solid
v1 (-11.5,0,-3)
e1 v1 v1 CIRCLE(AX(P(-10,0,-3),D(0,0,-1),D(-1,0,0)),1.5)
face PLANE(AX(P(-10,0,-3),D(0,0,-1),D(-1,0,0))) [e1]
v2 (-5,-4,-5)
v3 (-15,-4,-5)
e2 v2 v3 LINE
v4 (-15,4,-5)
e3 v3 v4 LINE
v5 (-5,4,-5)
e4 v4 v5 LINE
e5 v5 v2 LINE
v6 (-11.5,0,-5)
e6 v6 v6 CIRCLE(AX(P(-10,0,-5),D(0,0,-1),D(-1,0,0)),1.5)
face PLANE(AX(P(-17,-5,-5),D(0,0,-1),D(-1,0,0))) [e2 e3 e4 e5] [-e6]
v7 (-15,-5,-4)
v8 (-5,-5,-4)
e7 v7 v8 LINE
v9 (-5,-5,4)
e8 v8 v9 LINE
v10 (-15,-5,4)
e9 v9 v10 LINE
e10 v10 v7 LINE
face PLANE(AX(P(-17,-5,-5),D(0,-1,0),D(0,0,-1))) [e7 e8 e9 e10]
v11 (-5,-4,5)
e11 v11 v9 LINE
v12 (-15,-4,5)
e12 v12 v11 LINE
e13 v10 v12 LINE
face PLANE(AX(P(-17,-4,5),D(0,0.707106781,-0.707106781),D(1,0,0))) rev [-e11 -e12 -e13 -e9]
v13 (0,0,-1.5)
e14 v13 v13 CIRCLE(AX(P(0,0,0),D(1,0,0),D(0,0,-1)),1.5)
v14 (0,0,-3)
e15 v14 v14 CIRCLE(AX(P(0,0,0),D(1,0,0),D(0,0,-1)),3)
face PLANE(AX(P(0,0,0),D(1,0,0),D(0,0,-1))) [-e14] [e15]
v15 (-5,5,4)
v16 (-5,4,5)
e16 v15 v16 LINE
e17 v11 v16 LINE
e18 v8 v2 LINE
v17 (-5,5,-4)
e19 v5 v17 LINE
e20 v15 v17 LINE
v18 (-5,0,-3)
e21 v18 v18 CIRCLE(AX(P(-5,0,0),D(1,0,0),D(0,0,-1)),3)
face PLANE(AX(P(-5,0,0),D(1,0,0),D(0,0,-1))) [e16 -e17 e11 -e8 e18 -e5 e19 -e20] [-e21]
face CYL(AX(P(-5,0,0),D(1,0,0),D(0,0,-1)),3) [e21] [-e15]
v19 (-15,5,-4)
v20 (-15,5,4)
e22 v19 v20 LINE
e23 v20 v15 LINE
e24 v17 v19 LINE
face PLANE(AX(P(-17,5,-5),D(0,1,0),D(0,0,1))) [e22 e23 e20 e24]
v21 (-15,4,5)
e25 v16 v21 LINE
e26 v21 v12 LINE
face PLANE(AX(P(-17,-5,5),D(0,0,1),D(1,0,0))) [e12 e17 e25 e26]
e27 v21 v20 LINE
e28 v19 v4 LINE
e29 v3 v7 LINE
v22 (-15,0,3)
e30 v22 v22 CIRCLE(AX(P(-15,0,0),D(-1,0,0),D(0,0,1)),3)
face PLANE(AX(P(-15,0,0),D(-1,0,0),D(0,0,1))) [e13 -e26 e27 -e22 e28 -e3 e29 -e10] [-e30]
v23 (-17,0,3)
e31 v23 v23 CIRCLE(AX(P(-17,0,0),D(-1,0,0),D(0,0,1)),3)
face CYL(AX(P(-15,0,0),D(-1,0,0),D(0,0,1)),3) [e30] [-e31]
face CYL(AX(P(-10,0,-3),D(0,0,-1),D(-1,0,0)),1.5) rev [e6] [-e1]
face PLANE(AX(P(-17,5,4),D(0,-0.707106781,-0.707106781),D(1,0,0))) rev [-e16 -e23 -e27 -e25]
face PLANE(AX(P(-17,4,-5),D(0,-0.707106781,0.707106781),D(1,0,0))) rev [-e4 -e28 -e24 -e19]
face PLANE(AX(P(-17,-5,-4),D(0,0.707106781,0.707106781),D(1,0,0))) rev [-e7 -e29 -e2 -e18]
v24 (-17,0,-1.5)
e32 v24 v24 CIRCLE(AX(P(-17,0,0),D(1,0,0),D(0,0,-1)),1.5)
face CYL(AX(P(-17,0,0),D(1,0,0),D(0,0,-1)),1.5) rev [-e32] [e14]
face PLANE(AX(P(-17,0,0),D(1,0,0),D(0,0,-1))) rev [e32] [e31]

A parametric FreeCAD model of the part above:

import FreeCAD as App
import Part
import Sketcher


def edges_at(feature, points):
    """Names of the edges that pass closest to the given points."""
    edges = feature.Shape.Edges
    near = lambda p: min(range(len(edges)), key=lambda i: edges[i].distToShape(Part.Vertex(*p))[0])
    return sorted({f"Edge{near(p) + 1}" for p in points})

doc = App.newDocument("Part")
body = doc.addObject("PartDesign::Body", "Body")

# Sketch on YZ plane
sketch1 = body.newObject("Sketcher::SketchObject", "Sketch")
sketch1.AttachmentSupport = (doc.getObject("YZ_Plane"), [""])
sketch1.MapMode = "FlatFace"
sketch1.addGeometry([
    Part.LineSegment(App.Vector(5, 5, 0), App.Vector(-5, 5, 0)),
    Part.LineSegment(App.Vector(-5, 5, 0), App.Vector(-5, -5, 0)),
    Part.LineSegment(App.Vector(-5, -5, 0), App.Vector(5, -5, 0)),
    Part.LineSegment(App.Vector(5, -5, 0), App.Vector(5, 5, 0)),
], False)
sketch1.addConstraint([
    Sketcher.Constraint("Coincident", 0, 2, 1, 1),
    Sketcher.Constraint("Coincident", 1, 2, 2, 1),
    Sketcher.Constraint("Coincident", 2, 2, 3, 1),
    Sketcher.Constraint("Coincident", 3, 2, 0, 1),
    Sketcher.Constraint("Horizontal", 0),
    Sketcher.Constraint("Vertical", 1),
    Sketcher.Constraint("Horizontal", 2),
    Sketcher.Constraint("Vertical", 3),
    Sketcher.Constraint("Symmetric", 0, 2, 2, 2, -1, 1),
    Sketcher.Constraint("Equal", 2, 1),
    Sketcher.Constraint("DistanceX", 0, 2, 0, 1, 10.0),
])
pad1 = body.newObject("PartDesign::Pad", "Pad")
pad1.Profile = sketch1
pad1.Length = 17
pad1.Reversed = True

# Sketch on YZ plane
sketch2 = body.newObject("Sketcher::SketchObject", "Sketch001")
sketch2.AttachmentSupport = (doc.getObject("YZ_Plane"), [""])
sketch2.MapMode = "FlatFace"
sketch2.addGeometry([
    Part.Circle(App.Vector(0, 0, 0), App.Vector(0, 0, 1), 15.4),
    Part.Circle(App.Vector(0, 0, 0), App.Vector(0, 0, 1), 3),
], False)
sketch2.addConstraint([
    Sketcher.Constraint("Coincident", 0, 3, -1, 1),
    Sketcher.Constraint("Coincident", 1, 3, -1, 1),
    Sketcher.Constraint("Diameter", 1, 6.0),
    Sketcher.Constraint("Diameter", 0, 30.707136),
])
pocket1 = body.newObject("PartDesign::Pocket", "Pocket")
pocket1.Profile = sketch2
pocket1.Length = 5

# Sketch on YZ plane
sketch3 = body.newObject("Sketcher::SketchObject", "Sketch002")
sketch3.AttachmentSupport = (doc.getObject("YZ_Plane"), [""])
sketch3.MapMode = "FlatFace"
sketch3.AttachmentOffset = App.Placement(App.Vector(0, 0, -15), App.Rotation())
sketch3.addGeometry([
    Part.Circle(App.Vector(0, 0, 0), App.Vector(0, 0, 1), 15.6),
    Part.Circle(App.Vector(0, 0, 0), App.Vector(0, 0, 1), 3),
], False)
sketch3.addConstraint([
    Sketcher.Constraint("Coincident", 0, 3, -1, 1),
    Sketcher.Constraint("Coincident", 1, 3, -1, 1),
    Sketcher.Constraint("Diameter", 1, 6.0),
    Sketcher.Constraint("Diameter", 0, 31.270823),
])
pocket2 = body.newObject("PartDesign::Pocket", "Pocket001")
pocket2.Profile = sketch3
pocket2.Length = 2

# Sketch on YZ plane
sketch4 = body.newObject("Sketcher::SketchObject", "Sketch003")
sketch4.AttachmentSupport = (doc.getObject("YZ_Plane"), [""])
sketch4.MapMode = "FlatFace"
sketch4.addGeometry(Part.Circle(App.Vector(0, 0, 0), App.Vector(0, 0, 1), 1.5), False)
sketch4.addConstraint([
    Sketcher.Constraint("Coincident", 0, 3, -1, 1),
    Sketcher.Constraint("Diameter", 0, 3.0),
])
pocket3 = body.newObject("PartDesign::Pocket", "Pocket002")
pocket3.Profile = sketch4
pocket3.Type = "ThroughAll"
doc.recompute()

chamfer = body.newObject("PartDesign::Chamfer", "Chamfer")
chamfer.Base = (pocket3, edges_at(pocket3, [
    (-10, -5, -5),
    (-10, -5, 5),
    (-10, 5, -5),
    (-10, 5, 5),
]))
chamfer.Size = 1

# Sketch on XY plane
sketch5 = body.newObject("Sketcher::SketchObject", "Sketch004")
sketch5.AttachmentSupport = (doc.getObject("XY_Plane"), [""])
sketch5.MapMode = "FlatFace"
sketch5.AttachmentOffset = App.Placement(App.Vector(0, 0, -5), App.Rotation())
sketch5.addGeometry(Part.Circle(App.Vector(-10, 0, 0), App.Vector(0, 0, 1), 1.5), False)
sketch5.addConstraint([
    Sketcher.Constraint("PointOnObject", 0, 3, -1),
    Sketcher.Constraint("Diameter", 0, 3.0),
    Sketcher.Constraint("DistanceX", 0, 3, -1, 1, 10.0),
])
pocket4 = body.newObject("PartDesign::Pocket", "Pocket003")
pocket4.Profile = sketch5
pocket4.Length = 2
pocket4.Reversed = True

doc.recompute()
